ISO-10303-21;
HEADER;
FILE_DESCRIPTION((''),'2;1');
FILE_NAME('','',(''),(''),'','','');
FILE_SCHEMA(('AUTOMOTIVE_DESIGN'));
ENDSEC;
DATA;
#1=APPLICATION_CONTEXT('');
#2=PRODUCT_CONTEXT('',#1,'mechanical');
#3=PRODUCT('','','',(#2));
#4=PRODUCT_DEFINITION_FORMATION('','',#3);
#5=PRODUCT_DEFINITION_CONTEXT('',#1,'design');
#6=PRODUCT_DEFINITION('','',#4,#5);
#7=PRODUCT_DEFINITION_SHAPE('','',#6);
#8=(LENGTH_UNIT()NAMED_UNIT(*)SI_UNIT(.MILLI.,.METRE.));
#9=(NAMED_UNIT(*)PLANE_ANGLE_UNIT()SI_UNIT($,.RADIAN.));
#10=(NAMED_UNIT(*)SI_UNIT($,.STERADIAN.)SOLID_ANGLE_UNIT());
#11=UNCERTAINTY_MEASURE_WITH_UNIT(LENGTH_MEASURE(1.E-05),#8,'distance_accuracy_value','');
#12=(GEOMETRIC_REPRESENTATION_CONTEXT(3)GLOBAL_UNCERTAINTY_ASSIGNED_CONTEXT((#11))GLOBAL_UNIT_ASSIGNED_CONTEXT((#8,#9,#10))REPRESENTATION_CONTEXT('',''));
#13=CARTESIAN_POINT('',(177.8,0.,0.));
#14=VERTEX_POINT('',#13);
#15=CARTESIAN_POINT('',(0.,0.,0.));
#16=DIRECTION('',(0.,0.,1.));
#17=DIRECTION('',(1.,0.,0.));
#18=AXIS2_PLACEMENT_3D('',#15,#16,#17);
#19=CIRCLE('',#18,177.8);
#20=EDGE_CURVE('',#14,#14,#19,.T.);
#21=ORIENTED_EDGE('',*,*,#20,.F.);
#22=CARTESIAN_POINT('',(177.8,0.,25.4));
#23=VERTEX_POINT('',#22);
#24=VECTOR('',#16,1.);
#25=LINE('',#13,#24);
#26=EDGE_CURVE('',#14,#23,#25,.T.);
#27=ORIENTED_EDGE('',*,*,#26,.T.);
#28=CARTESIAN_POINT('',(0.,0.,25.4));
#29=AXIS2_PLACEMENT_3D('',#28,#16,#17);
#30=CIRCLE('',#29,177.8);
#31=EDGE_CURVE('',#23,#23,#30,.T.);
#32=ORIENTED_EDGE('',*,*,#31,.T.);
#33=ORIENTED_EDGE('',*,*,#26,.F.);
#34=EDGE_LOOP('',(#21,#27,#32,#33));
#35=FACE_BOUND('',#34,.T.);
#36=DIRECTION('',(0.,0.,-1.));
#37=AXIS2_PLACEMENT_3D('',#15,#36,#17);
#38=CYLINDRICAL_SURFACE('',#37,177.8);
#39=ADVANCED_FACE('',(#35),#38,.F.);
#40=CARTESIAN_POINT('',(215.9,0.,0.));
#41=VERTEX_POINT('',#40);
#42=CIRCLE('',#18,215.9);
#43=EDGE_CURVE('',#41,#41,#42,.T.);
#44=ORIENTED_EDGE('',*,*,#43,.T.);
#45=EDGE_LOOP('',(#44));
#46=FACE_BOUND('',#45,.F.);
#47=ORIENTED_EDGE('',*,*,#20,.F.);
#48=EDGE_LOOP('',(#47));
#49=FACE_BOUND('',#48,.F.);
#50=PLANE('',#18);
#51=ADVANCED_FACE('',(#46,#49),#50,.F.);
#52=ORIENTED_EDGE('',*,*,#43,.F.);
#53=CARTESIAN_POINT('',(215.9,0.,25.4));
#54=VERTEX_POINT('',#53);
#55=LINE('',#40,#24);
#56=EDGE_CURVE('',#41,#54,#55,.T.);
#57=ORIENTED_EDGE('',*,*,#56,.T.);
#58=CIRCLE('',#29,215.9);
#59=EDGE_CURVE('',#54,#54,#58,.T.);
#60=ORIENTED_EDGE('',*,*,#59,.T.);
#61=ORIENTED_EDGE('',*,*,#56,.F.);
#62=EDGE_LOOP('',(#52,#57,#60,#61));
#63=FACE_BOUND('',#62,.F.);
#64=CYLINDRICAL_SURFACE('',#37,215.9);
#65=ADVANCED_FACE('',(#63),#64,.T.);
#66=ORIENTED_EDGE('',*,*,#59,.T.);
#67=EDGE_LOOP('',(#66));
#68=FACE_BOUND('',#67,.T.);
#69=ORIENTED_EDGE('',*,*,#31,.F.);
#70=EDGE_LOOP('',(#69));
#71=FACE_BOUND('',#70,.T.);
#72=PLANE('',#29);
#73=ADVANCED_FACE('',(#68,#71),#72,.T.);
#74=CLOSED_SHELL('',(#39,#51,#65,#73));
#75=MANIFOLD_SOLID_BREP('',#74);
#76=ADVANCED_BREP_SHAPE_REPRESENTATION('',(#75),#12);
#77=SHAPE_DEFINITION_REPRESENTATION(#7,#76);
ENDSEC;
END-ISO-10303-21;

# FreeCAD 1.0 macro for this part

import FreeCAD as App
import Part
import Sketcher
from FreeCAD import Vector
Q = App.Units.Quantity

doc = App.newDocument("Part")
body = doc.addObject("PartDesign::Body", "Body")

# Sketch on XY plane
sketch1 = body.newObject("Sketcher::SketchObject", "Sketch")
sketch1.AttachmentSupport = (doc.getObject("XY_Plane"), [""])
sketch1.MapMode = "FlatFace"
sketch1.addGeometry([
    Part.Circle(Vector(0, 0, 0), Vector(0, 0, 1), 216),
    Part.Circle(Vector(0, 0, 0), Vector(0, 0, 1), 178),
], False)
sketch1.addConstraint([
    Sketcher.Constraint("Coincident", 0, 3, -1, 1),
    Sketcher.Constraint("Coincident", 1, 3, -1, 1),
    Sketcher.Constraint("Diameter", 0, Q("17 in")),
    Sketcher.Constraint("Diameter", 1, Q("14 in")),
])
pad1 = body.newObject("PartDesign::Pad", "Pad")
pad1.Profile = sketch1
pad1.Length = Q("1 in")

# Sketch on XY plane
sketch2 = body.newObject("Sketcher::SketchObject", "Sketch001")
sketch2.AttachmentSupport = (doc.getObject("XY_Plane"), [""])
sketch2.MapMode = "FlatFace"
sketch2.AttachmentOffset = App.Placement(Vector(0, 0, 1 * 25.4), App.Rotation())
sketch2.addGeometry([
    Part.Circle(Vector(29, 51, 0), Vector(0, 0, 1), 5),  # 0
    Part.Circle(Vector(-29, 51, 0), Vector(0, 0, 1), 5),  # 1
    Part.Circle(Vector(-58, 0, 0), Vector(0, 0, 1), 5),  # 2
    Part.Circle(Vector(-29, -51, 0), Vector(0, 0, 1), 5),  # 3
    Part.Circle(Vector(29, -51, 0), Vector(0, 0, 1), 5),  # 4
    Part.Circle(Vector(58, 0, 0), Vector(0, 0, 1), 5),  # 5
], False)
sketch2.addConstraint([
    Sketcher.Constraint("Equal", 0, 1),
    Sketcher.Constraint("Equal", 1, 2),
    Sketcher.Constraint("Equal", 2, 3),
    Sketcher.Constraint("Equal", 3, 4),
    Sketcher.Constraint("Equal", 4, 5),
    Sketcher.Constraint("Symmetric", 0, 3, 3, 3, -1, 1),
    Sketcher.Constraint("Symmetric", 1, 3, 4, 3, -1, 1),
    Sketcher.Constraint("Symmetric", 2, 3, 5, 3, -1, 1),
    Sketcher.Constraint("Symmetric", 0, 3, 1, 3, -2),
    Sketcher.Constraint("PointOnObject", 2, 3, -1),
    Sketcher.Constraint("Diameter", 0, Q("0.4 in")),
    Sketcher.Constraint("DistanceX", 2, 3, -1, 1, Q("2.3 in")),
    Sketcher.Constraint("DistanceX", 1, 3, 0, 3, Q("2.3 in")),
    Sketcher.Constraint("DistanceY", 3, 3, 1, 3, 101.186408),
])
pocket1 = body.newObject("PartDesign::Pocket", "Pocket")
pocket1.Profile = sketch2
pocket1.Length = Q("1.5 in")

doc.recompute()
